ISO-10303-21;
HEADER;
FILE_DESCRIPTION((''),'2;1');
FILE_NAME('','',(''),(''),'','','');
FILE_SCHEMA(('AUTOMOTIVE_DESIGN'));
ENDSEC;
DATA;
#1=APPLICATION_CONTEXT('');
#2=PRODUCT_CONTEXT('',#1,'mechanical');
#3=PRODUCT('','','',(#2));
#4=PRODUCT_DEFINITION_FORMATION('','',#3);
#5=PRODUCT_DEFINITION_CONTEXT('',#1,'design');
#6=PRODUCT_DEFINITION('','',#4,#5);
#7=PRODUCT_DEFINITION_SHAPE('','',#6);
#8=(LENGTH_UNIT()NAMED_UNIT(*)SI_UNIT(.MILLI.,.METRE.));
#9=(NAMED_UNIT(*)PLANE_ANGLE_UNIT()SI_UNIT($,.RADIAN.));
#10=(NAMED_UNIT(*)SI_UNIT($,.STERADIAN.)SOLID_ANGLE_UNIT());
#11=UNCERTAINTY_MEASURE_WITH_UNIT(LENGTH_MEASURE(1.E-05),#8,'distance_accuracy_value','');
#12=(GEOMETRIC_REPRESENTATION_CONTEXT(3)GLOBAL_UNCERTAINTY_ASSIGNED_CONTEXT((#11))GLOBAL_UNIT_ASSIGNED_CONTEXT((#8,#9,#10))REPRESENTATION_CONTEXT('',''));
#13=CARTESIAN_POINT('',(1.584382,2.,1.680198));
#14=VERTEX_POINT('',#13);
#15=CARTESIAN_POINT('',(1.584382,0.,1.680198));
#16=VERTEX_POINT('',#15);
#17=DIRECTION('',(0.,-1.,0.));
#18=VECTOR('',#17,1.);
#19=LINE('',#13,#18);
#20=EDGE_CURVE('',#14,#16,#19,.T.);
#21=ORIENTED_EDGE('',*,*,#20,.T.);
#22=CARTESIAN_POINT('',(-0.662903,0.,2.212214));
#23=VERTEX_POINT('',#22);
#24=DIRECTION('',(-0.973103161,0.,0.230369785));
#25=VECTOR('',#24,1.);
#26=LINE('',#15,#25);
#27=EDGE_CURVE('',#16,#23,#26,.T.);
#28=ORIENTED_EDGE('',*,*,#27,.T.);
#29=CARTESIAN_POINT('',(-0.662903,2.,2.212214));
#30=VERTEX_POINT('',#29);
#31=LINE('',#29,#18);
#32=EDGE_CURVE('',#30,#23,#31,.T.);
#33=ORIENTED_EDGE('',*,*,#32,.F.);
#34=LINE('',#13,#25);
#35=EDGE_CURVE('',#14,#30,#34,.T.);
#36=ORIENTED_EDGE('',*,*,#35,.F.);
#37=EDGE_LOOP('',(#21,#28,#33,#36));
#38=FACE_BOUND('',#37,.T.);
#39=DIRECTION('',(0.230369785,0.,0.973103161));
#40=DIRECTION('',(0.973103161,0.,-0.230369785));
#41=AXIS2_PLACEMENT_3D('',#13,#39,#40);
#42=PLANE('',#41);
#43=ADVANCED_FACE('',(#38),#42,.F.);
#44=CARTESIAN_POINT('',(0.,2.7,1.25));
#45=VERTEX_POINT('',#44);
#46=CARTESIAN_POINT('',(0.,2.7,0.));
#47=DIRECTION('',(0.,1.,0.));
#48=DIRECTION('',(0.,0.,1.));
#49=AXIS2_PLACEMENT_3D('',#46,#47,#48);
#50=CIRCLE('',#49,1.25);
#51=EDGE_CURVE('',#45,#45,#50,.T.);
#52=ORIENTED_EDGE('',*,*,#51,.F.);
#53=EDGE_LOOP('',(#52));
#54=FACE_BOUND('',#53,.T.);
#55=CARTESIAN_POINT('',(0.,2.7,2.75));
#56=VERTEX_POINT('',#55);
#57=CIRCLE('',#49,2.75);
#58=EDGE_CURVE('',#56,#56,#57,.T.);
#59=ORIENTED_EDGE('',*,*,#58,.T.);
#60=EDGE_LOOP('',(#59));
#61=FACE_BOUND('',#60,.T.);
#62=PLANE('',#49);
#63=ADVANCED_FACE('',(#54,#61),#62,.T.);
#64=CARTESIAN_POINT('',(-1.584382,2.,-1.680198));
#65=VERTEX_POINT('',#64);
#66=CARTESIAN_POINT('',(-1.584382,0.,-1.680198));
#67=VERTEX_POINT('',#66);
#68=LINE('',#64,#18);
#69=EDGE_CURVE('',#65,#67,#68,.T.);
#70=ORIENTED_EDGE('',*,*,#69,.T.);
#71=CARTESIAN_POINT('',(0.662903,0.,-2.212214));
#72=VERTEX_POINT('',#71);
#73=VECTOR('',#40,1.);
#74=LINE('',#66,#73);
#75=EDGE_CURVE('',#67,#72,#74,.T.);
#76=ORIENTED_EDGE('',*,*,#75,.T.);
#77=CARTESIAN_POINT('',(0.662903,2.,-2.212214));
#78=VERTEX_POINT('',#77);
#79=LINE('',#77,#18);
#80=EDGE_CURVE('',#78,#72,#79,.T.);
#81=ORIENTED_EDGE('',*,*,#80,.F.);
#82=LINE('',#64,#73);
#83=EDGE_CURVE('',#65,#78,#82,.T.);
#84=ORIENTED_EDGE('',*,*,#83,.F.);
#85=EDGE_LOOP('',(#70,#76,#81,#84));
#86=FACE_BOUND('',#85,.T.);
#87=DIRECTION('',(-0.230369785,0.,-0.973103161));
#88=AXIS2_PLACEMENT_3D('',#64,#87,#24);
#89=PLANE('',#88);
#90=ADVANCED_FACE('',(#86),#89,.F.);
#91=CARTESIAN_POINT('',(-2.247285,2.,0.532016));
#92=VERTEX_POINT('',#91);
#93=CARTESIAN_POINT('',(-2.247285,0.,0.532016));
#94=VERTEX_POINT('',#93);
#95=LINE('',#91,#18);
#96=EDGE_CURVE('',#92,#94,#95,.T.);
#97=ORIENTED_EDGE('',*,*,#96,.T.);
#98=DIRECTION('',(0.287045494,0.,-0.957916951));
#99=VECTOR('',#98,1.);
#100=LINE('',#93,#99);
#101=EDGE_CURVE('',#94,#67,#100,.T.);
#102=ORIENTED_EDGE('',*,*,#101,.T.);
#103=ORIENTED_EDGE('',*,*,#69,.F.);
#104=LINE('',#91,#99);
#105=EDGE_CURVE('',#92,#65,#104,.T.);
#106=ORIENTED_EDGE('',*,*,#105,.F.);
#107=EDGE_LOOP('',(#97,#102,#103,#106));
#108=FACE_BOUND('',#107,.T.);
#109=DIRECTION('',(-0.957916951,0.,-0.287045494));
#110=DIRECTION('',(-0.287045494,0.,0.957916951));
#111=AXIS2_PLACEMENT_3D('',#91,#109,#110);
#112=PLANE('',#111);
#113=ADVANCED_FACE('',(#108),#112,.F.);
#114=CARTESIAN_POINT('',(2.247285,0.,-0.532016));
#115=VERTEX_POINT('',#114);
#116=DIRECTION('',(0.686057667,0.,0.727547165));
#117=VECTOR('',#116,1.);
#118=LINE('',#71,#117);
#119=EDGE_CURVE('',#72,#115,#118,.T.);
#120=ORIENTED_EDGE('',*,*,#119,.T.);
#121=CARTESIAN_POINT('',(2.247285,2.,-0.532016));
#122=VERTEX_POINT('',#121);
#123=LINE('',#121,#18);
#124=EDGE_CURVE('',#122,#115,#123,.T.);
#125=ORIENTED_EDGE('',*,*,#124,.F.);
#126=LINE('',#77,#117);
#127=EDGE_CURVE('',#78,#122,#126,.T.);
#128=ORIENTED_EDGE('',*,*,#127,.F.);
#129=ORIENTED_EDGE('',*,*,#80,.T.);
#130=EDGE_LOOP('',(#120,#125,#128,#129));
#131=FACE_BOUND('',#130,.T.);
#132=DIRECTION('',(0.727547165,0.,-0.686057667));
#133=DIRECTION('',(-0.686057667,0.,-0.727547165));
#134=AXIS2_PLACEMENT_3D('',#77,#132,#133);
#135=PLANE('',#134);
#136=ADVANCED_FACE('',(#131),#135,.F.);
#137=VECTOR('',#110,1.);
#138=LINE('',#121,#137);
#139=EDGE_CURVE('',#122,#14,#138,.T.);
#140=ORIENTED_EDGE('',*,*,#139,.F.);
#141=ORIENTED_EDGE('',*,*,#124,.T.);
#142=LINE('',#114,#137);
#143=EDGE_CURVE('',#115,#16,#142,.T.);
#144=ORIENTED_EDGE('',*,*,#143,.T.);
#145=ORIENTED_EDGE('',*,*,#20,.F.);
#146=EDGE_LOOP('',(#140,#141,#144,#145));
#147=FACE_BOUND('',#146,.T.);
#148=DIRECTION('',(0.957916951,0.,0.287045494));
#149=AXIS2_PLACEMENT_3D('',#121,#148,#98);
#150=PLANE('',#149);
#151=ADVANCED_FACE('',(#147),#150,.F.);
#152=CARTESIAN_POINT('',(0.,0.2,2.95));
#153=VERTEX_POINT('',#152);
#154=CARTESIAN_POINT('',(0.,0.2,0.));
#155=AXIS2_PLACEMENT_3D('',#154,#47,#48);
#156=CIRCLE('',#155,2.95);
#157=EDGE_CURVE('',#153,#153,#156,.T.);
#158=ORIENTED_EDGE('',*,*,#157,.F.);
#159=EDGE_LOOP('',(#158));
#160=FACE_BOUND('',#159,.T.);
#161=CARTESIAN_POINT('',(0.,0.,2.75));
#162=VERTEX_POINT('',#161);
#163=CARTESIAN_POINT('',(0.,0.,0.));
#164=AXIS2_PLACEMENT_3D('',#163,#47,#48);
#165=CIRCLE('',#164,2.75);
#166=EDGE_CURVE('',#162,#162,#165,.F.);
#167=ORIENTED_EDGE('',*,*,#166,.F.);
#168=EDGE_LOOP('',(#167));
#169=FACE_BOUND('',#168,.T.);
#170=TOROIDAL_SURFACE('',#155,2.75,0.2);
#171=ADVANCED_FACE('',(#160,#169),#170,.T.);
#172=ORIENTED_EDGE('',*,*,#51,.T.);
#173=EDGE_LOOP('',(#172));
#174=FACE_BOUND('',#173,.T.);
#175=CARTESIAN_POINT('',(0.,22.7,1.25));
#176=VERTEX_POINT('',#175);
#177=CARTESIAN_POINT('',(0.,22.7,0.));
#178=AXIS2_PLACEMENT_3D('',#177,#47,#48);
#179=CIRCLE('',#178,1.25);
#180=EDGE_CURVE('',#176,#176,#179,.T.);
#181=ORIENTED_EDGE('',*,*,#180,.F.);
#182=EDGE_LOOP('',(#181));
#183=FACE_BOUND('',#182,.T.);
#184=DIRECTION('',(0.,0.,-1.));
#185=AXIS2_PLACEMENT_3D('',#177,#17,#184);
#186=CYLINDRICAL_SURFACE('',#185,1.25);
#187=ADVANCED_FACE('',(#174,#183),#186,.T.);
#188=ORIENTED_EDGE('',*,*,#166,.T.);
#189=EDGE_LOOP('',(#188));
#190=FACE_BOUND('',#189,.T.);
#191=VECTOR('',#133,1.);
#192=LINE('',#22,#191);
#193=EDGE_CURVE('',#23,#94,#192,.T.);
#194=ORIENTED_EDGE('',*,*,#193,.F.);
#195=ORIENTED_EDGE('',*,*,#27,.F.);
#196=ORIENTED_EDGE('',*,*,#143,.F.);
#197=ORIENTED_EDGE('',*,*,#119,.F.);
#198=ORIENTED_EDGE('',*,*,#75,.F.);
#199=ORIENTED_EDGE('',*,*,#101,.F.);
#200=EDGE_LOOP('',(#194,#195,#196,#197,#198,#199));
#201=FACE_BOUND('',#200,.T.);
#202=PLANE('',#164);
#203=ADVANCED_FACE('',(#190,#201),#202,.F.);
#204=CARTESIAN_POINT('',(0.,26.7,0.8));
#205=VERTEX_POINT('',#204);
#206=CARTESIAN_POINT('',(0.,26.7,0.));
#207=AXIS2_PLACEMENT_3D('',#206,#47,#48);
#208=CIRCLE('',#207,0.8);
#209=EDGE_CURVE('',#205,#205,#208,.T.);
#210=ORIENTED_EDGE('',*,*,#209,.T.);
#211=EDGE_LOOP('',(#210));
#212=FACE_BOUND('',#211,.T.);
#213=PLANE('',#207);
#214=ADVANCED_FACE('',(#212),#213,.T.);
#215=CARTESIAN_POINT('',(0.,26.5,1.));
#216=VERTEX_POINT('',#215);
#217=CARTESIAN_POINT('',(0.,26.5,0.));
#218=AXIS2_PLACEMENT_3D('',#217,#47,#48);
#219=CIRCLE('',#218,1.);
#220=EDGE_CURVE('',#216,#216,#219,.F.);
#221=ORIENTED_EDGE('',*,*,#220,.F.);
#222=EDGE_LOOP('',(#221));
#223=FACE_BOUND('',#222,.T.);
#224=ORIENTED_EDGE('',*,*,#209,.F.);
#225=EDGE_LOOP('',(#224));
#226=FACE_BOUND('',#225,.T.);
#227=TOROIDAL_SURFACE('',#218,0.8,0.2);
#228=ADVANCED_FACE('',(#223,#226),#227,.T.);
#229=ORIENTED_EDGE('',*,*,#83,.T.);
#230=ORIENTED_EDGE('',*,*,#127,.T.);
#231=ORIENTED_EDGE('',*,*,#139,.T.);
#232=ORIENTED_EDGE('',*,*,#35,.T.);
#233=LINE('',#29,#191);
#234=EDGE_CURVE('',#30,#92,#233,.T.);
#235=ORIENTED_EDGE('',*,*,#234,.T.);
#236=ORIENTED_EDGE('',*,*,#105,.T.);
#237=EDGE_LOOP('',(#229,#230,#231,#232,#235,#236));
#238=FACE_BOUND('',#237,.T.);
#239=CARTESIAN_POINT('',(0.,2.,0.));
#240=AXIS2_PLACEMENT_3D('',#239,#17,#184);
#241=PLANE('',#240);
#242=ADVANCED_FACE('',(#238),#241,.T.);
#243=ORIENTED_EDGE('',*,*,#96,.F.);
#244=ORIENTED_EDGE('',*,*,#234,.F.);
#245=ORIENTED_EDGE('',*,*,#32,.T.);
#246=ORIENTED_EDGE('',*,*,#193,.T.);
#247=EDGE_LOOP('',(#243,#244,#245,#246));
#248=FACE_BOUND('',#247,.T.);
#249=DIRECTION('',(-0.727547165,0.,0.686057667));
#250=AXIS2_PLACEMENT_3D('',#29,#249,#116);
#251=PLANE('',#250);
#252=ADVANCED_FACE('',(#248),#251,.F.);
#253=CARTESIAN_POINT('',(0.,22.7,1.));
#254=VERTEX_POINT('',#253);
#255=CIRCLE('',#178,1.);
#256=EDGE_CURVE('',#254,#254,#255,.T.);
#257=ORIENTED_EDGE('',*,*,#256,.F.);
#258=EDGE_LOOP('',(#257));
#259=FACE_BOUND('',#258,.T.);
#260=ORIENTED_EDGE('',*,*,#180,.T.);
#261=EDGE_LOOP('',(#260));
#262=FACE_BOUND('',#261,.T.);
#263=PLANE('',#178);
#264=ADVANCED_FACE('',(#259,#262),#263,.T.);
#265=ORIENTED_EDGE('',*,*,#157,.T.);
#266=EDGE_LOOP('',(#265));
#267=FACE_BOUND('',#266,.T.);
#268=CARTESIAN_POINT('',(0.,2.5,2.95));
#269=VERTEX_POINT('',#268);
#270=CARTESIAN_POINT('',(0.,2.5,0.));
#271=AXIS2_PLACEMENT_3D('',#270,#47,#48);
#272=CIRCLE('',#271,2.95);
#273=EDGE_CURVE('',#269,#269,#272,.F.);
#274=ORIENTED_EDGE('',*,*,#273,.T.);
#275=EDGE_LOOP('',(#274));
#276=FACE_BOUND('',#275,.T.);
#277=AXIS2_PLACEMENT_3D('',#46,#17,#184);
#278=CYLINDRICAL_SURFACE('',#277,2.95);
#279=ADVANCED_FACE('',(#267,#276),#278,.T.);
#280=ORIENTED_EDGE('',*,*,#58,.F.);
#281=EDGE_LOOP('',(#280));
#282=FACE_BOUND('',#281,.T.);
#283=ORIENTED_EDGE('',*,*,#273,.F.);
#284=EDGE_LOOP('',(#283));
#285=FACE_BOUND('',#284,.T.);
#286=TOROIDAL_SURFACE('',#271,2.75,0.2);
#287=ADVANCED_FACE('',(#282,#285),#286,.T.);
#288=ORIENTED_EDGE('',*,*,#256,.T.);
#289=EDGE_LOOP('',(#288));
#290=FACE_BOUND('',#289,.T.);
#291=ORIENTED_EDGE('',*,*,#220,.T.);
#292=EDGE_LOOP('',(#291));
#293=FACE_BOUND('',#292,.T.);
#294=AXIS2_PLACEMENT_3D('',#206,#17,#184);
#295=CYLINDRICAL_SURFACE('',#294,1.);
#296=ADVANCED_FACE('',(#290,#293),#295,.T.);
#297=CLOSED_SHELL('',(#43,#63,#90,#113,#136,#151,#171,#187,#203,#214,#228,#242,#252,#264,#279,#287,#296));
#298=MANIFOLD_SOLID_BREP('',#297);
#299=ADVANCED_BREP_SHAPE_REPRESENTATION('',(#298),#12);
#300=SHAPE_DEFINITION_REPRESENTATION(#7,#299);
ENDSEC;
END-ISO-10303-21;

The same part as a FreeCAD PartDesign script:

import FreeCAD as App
import Part
import Sketcher

V = App.Vector
Q = App.Units.Quantity


def edges_at(feature, points):
    """Names of the edges that pass closest to the given points."""
    edges = feature.Shape.Edges
    near = lambda p: min(range(len(edges)), key=lambda i: edges[i].distToShape(Part.Vertex(*p))[0])
    return sorted({f"Edge{near(p) + 1}" for p in points})


def add_polygon(sketch, points):
    """Adds a closed chain of lines whose ends are joined by coincident constraints."""
    first, n = sketch.GeometryCount, len(points)
    for a, b in zip(points, points[1:] + points[:1]):
        sketch.addGeometry(Part.LineSegment(App.Vector(*a, 0), App.Vector(*b, 0)), False)
    for i in range(n):
        sketch.addConstraint(Sketcher.Constraint("Coincident", first + i, 2, first + (i + 1) % n, 1))

doc = App.newDocument("Part")
body = doc.addObject("PartDesign::Body", "Body")

sketch1 = doc.addObject("Sketcher::SketchObject", "Sketch")
body.addObject(sketch1)
sketch1.AttachmentSupport = (doc.XZ_Plane, [""])
sketch1.MapMode = "FlatFace"
sketch1.addGeometry(Part.Circle(V(0, 0, 0), V(0, 0, 1), 3), False)
sketch1.addConstraint([
    Sketcher.Constraint("Coincident", 0, 3, -1, 1),
    Sketcher.Constraint("Diameter", 0, Q("5.9 mm")),
])
pad1 = doc.addObject("PartDesign::Pad", "Pad")
body.addObject(pad1)
pad1.Profile = sketch1
pad1.Length = 2.7
pad1.Reversed = True

sketch2 = doc.addObject("Sketcher::SketchObject", "Sketch001")
body.addObject(sketch2)
sketch2.AttachmentSupport = (doc.XZ_Plane, [""])
sketch2.MapMode = "FlatFace"
sketch2.AttachmentOffset = App.Placement(V(0, 0, -2.7), App.Rotation())
sketch2.addGeometry(Part.Circle(V(0, 0, 0), V(0, 0, 1), 1.2), False)
sketch2.addConstraint([
    Sketcher.Constraint("Coincident", 0, 3, -1, 1),
    Sketcher.Constraint("Diameter", 0, Q("2.5 mm")),
])
pad2 = doc.addObject("PartDesign::Pad", "Pad001")
body.addObject(pad2)
pad2.Profile = sketch2
pad2.Length = 20
pad2.Reversed = True

sketch3 = doc.addObject("Sketcher::SketchObject", "Sketch002")
body.addObject(sketch3)
sketch3.AttachmentSupport = (doc.XZ_Plane, [""])
sketch3.MapMode = "FlatFace"
sketch3.AttachmentOffset = App.Placement(V(0, 0, -22.7), App.Rotation())
sketch3.addGeometry(Part.Circle(V(0, 0, 0), V(0, 0, 1), 1), False)
sketch3.addConstraint([
    Sketcher.Constraint("Coincident", 0, 3, -1, 1),
    Sketcher.Constraint("Diameter", 0, Q("2 mm")),
])
pad3 = doc.addObject("PartDesign::Pad", "Pad002")
body.addObject(pad3)
pad3.Profile = sketch3
pad3.Length = 4
pad3.Reversed = True

sketch4 = doc.addObject("Sketcher::SketchObject", "Sketch003")
body.addObject(sketch4)
sketch4.AttachmentSupport = (doc.XZ_Plane, [""])
sketch4.MapMode = "FlatFace"
add_polygon(sketch4, [(2.2, -0.5), (1.6, 1.7), (-0.7, 2.2), (-2.2, 0.5), (-1.6, -1.7), (0.7, -2.2)])
sketch4.addConstraint([
    Sketcher.Constraint("Symmetric", 0, 2, 3, 2, -1, 1),
    Sketcher.Constraint("Symmetric", 1, 2, 4, 2, -1, 1),
    Sketcher.Constraint("Symmetric", 2, 2, 5, 2, -1, 1),
    Sketcher.Constraint("Equal", 0, 1),
    Sketcher.Constraint("Equal", 1, 2),
    Sketcher.Constraint("Distance", 0, Q("2.309401 mm")),
    Sketcher.Constraint("DistanceY", -1, 1, 0, 2, Q("1.680198 mm")),
    Sketcher.Constraint("DistanceY", 2, 2, 1, 2, Q("1.680198 mm")),
    Sketcher.Constraint("DistanceY", 2, 2, 0, 2, Q("1.148182 mm")),
])
pocket1 = doc.addObject("PartDesign::Pocket", "Pocket")
body.addObject(pocket1)
pocket1.Profile = sketch4
pocket1.Length = 2
doc.recompute()

fillet = doc.addObject("PartDesign::Fillet", "Fillet")
body.addObject(fillet)
fillet.Base = (pocket1, edges_at(pocket1, [(-1, 26.7, 0), (-2.95, 0, 0), (-2.95, 2.7, 0)]))
fillet.Radius = 0.2

doc.recompute()
